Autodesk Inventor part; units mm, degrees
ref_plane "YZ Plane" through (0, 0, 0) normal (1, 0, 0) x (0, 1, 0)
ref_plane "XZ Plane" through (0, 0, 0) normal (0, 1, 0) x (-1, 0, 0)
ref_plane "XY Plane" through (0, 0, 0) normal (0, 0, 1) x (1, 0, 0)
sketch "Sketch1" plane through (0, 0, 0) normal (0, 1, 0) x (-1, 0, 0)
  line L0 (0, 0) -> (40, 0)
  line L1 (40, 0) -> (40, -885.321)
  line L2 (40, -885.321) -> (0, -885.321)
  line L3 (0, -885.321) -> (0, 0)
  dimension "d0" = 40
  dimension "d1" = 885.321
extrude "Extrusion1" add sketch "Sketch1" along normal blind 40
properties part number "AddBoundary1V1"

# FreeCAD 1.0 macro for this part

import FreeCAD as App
import Part
import Sketcher
from FreeCAD import Vector


def add_polygon(sketch, points):
    """Adds a closed chain of lines whose ends are joined by coincident constraints."""
    first, n = sketch.GeometryCount, len(points)
    for a, b in zip(points, points[1:] + points[:1]):
        sketch.addGeometry(Part.LineSegment(App.Vector(*a, 0), App.Vector(*b, 0)), False)
    for i in range(n):
        sketch.addConstraint(Sketcher.Constraint("Coincident", first + i, 2, first + (i + 1) % n, 1))

doc = App.newDocument("Part")
body = doc.addObject("PartDesign::Body", "Body")

# Sketch on XZ plane
sketch1 = body.newObject("Sketcher::SketchObject", "Sketch")
sketch1.AttachmentSupport = (doc.getObject("XZ_Plane"), [""])
sketch1.MapMode = "FlatFace"
add_polygon(sketch1, [(-40, 0), (0, 0), (0, -885.321), (-40, -885.321)])  # lines 0-3
sketch1.addConstraint([
    Sketcher.Constraint("Horizontal", 0),
    Sketcher.Constraint("Vertical", 1),
    Sketcher.Constraint("Horizontal", 2),
    Sketcher.Constraint("Vertical", 3),
    Sketcher.Constraint("Coincident", 0, 2, -1, 1),
    Sketcher.Constraint("DistanceX", 0, 1, 0, 2, 40.0),
    Sketcher.Constraint("DistanceY", 1, 2, 1, 1, 885.321),
])
pad1 = body.newObject("PartDesign::Pad", "Pad")
pad1.Profile = sketch1
pad1.Length = 40
pad1.Reversed = True

doc.recompute()
